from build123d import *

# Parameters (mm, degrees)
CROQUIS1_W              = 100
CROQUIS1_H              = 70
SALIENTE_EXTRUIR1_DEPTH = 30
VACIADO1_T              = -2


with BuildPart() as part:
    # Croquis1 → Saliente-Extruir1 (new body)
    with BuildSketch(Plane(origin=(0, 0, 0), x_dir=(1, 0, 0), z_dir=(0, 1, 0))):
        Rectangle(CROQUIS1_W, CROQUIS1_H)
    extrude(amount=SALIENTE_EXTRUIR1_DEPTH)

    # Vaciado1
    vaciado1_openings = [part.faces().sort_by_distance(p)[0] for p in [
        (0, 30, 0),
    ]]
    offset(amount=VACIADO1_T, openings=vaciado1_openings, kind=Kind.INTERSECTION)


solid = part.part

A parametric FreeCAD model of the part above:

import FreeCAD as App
import Part
import Sketcher


def faces_at(feature, points):
    """Names of the faces that lie closest to the given points."""
    faces = feature.Shape.Faces
    near = lambda p: min(range(len(faces)), key=lambda i: faces[i].distToShape(Part.Vertex(*p))[0])
    return sorted({f"Face{near(p) + 1}" for p in points})


def add_polygon(sketch, points):
    """Adds a closed chain of lines whose ends are joined by coincident constraints."""
    first, n = sketch.GeometryCount, len(points)
    for a, b in zip(points, points[1:] + points[:1]):
        sketch.addGeometry(Part.LineSegment(App.Vector(*a, 0), App.Vector(*b, 0)), False)
    for i in range(n):
        sketch.addConstraint(Sketcher.Constraint("Coincident", first + i, 2, first + (i + 1) % n, 1))

doc = App.newDocument("Part")
body = doc.addObject("PartDesign::Body", "Body")

sketch1 = body.newObject("Sketcher::SketchObject", "Sketch")
sketch1.AttachmentSupport = (doc.getObject("XZ_Plane"), [""])
sketch1.MapMode = "FlatFace"
add_polygon(sketch1, [(-50, -35), (-50, 35), (50, 35), (50, -35)])
sketch1.addConstraint(Sketcher.Constraint("Vertical", 0))
sketch1.addConstraint(Sketcher.Constraint("Horizontal", 1))
sketch1.addConstraint(Sketcher.Constraint("Vertical", 2))
sketch1.addConstraint(Sketcher.Constraint("Horizontal", 3))
sketch1.addConstraint(Sketcher.Constraint("Symmetric", 0, 2, 2, 2, -1, 1))
sketch1.addConstraint(Sketcher.Constraint("DistanceX", 1, 1, 1, 2, 100.0))
sketch1.addConstraint(Sketcher.Constraint("DistanceY", 0, 1, 0, 2, 70.0))
pad1 = body.newObject("PartDesign::Pad", "Pad")
pad1.Profile = sketch1
pad1.Length = 30
pad1.Reversed = True
doc.recompute()

thickness = body.newObject("PartDesign::Thickness", "Thickness")
thickness.Base = (pad1, faces_at(pad1, [(0, 30, 0)]))
thickness.Value = 2
thickness.Reversed = True
thickness.Join = "Intersection"

doc.recompute()
